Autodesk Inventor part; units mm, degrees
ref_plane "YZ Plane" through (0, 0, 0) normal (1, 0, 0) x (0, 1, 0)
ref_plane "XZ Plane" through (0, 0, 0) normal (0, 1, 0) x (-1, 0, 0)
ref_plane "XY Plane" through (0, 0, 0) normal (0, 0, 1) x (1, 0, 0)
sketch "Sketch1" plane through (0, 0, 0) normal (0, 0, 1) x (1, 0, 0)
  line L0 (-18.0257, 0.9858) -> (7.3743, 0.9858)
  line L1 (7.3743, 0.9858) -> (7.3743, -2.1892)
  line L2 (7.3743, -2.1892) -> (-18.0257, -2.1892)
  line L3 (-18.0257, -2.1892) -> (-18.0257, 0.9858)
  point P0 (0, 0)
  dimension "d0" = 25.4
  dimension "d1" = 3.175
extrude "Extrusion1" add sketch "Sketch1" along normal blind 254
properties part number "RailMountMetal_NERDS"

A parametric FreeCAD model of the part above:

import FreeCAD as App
import Part
import Sketcher
from FreeCAD import Vector
Q = App.Units.Quantity

doc = App.newDocument("Part")
body = doc.addObject("PartDesign::Body", "Body")

# Sketch on XY plane
sketch1 = body.newObject("Sketcher::SketchObject", "Sketch")
sketch1.AttachmentSupport = (doc.getObject("XY_Plane"), [""])
sketch1.MapMode = "FlatFace"
sketch1.addGeometry([
    Part.LineSegment(Vector(7.4, 1, 0), Vector(-18, 1, 0)),
    Part.LineSegment(Vector(-18, 1, 0), Vector(-18, -2.2, 0)),
    Part.LineSegment(Vector(-18, -2.2, 0), Vector(7.4, -2.2, 0)),
    Part.LineSegment(Vector(7.4, -2.2, 0), Vector(7.4, 1, 0)),
], False)
sketch1.addConstraint([
    Sketcher.Constraint("Coincident", 0, 2, 1, 1),
    Sketcher.Constraint("Coincident", 1, 2, 2, 1),
    Sketcher.Constraint("Coincident", 2, 2, 3, 1),
    Sketcher.Constraint("Coincident", 3, 2, 0, 1),
    Sketcher.Constraint("Horizontal", 0),
    Sketcher.Constraint("Vertical", 1),
    Sketcher.Constraint("Horizontal", 2),
    Sketcher.Constraint("Vertical", 3),
    Sketcher.Constraint("DistanceX", 0, 2, 0, 1, Q("1 in")),
    Sketcher.Constraint("DistanceY", 1, 2, 1, 1, Q("0.125 in")),
    Sketcher.Constraint("DistanceY", -1, 1, 0, 2, Q("0.0388 in")),
    Sketcher.Constraint("DistanceX", 0, 2, -1, 1, Q("18.0257 mm")),
])
pad1 = body.newObject("PartDesign::Pad", "Pad")
pad1.Profile = sketch1
pad1.Length = Q("10 in")

doc.recompute()
